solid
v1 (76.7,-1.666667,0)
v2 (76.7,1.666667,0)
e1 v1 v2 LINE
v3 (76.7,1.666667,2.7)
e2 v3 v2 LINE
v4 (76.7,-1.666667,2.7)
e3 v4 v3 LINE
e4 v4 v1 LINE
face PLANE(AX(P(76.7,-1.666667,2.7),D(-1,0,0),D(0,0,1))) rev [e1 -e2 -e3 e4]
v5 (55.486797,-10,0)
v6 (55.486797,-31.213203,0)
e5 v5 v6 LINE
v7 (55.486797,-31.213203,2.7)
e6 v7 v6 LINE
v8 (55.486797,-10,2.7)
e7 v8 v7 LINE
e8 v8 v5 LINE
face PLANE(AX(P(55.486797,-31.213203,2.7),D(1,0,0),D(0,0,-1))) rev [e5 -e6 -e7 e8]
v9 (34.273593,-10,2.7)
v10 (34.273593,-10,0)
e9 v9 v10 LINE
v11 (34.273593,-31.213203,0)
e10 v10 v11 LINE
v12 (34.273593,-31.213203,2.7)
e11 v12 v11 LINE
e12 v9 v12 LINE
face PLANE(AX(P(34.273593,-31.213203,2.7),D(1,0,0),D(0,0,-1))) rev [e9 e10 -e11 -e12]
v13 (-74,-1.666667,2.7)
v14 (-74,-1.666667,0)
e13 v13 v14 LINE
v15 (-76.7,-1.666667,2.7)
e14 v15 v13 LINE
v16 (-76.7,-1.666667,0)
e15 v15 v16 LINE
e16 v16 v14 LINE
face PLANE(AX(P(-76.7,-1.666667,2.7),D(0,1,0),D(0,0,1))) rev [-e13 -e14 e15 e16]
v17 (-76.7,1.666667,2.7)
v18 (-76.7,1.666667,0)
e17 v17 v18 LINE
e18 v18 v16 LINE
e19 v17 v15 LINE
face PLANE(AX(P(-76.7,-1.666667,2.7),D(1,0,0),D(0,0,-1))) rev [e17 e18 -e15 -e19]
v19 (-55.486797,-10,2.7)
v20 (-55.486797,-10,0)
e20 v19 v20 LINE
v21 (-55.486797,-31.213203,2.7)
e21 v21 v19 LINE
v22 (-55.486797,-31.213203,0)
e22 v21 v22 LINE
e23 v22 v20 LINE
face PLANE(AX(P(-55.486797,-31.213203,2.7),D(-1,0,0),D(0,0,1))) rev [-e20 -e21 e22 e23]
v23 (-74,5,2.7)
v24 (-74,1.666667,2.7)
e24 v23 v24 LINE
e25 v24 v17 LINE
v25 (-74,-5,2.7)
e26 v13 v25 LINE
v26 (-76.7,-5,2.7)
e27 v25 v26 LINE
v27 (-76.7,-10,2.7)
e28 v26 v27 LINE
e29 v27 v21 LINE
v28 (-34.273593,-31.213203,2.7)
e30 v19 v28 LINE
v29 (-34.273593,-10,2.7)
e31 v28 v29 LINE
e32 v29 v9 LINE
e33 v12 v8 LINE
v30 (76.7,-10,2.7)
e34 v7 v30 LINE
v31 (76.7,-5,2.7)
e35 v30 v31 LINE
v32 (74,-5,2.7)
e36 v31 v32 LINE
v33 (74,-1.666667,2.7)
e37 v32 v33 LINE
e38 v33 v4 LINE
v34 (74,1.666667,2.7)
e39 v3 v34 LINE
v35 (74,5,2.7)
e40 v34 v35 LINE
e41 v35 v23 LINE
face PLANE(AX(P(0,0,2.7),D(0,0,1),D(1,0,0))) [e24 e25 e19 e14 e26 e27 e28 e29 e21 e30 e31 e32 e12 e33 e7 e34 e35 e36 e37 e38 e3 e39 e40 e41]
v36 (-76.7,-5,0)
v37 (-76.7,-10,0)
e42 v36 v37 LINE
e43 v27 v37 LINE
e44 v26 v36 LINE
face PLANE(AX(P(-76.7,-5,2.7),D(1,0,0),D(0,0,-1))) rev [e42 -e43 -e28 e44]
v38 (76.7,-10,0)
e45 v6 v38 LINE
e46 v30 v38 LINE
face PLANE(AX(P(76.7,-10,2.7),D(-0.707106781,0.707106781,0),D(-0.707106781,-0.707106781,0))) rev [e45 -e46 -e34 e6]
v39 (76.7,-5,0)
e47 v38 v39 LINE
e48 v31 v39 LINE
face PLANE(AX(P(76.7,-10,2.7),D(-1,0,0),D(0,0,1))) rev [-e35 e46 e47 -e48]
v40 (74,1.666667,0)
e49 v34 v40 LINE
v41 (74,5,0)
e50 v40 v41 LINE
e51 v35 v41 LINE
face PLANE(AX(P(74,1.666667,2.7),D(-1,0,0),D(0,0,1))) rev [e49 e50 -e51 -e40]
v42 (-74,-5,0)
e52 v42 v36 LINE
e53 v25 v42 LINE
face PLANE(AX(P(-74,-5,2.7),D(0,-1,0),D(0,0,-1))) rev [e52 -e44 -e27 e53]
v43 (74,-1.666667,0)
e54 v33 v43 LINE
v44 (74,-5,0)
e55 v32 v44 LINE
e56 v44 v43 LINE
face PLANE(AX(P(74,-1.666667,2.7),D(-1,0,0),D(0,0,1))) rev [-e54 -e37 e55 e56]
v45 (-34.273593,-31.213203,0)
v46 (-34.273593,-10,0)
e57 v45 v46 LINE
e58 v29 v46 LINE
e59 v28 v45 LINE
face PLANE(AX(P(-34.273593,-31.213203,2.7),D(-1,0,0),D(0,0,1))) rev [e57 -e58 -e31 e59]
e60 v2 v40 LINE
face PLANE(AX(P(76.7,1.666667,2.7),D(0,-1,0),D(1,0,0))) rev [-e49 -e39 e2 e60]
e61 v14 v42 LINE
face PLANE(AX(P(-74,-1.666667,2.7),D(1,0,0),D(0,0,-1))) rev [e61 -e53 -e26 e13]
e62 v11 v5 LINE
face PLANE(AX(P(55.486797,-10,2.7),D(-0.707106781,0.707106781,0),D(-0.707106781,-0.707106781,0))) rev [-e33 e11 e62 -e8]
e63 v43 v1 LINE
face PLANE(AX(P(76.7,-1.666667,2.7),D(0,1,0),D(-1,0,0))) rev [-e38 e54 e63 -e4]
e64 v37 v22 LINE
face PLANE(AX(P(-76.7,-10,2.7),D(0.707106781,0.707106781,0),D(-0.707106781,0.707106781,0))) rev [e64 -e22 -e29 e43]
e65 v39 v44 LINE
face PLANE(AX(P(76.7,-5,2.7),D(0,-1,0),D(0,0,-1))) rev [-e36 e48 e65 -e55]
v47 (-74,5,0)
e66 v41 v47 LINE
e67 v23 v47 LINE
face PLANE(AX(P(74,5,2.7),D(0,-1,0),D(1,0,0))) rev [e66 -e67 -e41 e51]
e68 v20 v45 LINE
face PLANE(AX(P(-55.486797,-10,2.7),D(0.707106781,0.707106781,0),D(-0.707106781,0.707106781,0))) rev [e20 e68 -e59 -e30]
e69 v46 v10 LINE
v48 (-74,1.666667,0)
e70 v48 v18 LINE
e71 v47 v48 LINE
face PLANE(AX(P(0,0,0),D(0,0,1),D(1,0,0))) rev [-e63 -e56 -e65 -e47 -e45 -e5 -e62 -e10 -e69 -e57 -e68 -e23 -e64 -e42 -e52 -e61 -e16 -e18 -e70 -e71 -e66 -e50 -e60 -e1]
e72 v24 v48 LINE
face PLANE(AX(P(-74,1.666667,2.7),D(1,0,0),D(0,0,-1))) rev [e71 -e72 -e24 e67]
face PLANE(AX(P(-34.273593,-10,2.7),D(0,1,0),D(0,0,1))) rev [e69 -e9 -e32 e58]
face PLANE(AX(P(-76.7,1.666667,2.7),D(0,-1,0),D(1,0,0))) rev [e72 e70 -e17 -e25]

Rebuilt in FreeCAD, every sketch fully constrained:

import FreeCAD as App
import Part
import Sketcher
from FreeCAD import Vector


def add_polygon(sketch, points):
    """Adds a closed chain of lines whose ends are joined by coincident constraints."""
    first, n = sketch.GeometryCount, len(points)
    for a, b in zip(points, points[1:] + points[:1]):
        sketch.addGeometry(Part.LineSegment(App.Vector(*a, 0), App.Vector(*b, 0)), False)
    for i in range(n):
        sketch.addConstraint(Sketcher.Constraint("Coincident", first + i, 2, first + (i + 1) % n, 1))

doc = App.newDocument("Part")
body = doc.addObject("PartDesign::Body", "Body")

# Sketch on XY plane
sketch1 = doc.addObject("Sketcher::SketchObject", "Sketch")
body.addObject(sketch1)
sketch1.AttachmentSupport = (doc.XY_Plane, [""])
sketch1.MapMode = "FlatFace"
add_polygon(sketch1, [(-76.7, 1.7), (-76.7, -1.7), (-74, -1.7), (-74, -5), (-76.7, -5), (-76.7, -10), (-55.5, -31.2), (-55.5, -10), (-34.3, -31.2), (-34.3, -10), (34.3, -10), (34.3, -31.2), (55.5, -10), (55.5, -31.2), (76.7, -10), (76.7, -5), (74, -5), (74, -1.7), (76.7, -1.7), (76.7, 1.7), (74, 1.7), (74, 5), (-74, 5), (-74, 1.7)])  # lines 0-23
sketch1.addConstraint(Sketcher.Constraint("Vertical", 0))
sketch1.addConstraint(Sketcher.Constraint("Horizontal", 1))
sketch1.addConstraint(Sketcher.Constraint("Vertical", 2))
sketch1.addConstraint(Sketcher.Constraint("Horizontal", 3))
sketch1.addConstraint(Sketcher.Constraint("Vertical", 4))
sketch1.addConstraint(Sketcher.Constraint("Vertical", 6))
sketch1.addConstraint(Sketcher.Constraint("Vertical", 8))
sketch1.addConstraint(Sketcher.Constraint("Horizontal", 9))
sketch1.addConstraint(Sketcher.Constraint("Vertical", 10))
sketch1.addConstraint(Sketcher.Constraint("Vertical", 12))
sketch1.addConstraint(Sketcher.Constraint("Vertical", 14))
sketch1.addConstraint(Sketcher.Constraint("Horizontal", 15))
sketch1.addConstraint(Sketcher.Constraint("Vertical", 16))
sketch1.addConstraint(Sketcher.Constraint("Horizontal", 17))
sketch1.addConstraint(Sketcher.Constraint("Vertical", 18))
sketch1.addConstraint(Sketcher.Constraint("Horizontal", 19))
sketch1.addConstraint(Sketcher.Constraint("Vertical", 20))
sketch1.addConstraint(Sketcher.Constraint("Horizontal", 21))
sketch1.addConstraint(Sketcher.Constraint("Vertical", 22))
sketch1.addConstraint(Sketcher.Constraint("Horizontal", 23))
sketch1.addConstraint(Sketcher.Constraint("Symmetric", 0, 2, 18, 2, -1, 1))
sketch1.addConstraint(Sketcher.Constraint("Symmetric", 2, 2, 20, 2, -1, 1))
sketch1.addConstraint(Sketcher.Constraint("Symmetric", 15, 2, 21, 2, -1, 1))
sketch1.addConstraint(Sketcher.Constraint("Symmetric", 7, 2, 10, 2, -2))
sketch1.addConstraint(Sketcher.Constraint("Symmetric", 6, 2, 11, 2, -2))
sketch1.addConstraint(Sketcher.Constraint("Symmetric", 4, 2, 13, 2, -2))
sketch1.addConstraint(Sketcher.Constraint("Symmetric", 1, 2, 16, 2, -2))
sketch1.addConstraint(Sketcher.Constraint("Parallel", 5, 7))
sketch1.addConstraint(Sketcher.Constraint("Perpendicular", 7, 11))
sketch1.addConstraint(Sketcher.Constraint("Parallel", 11, 13))
sketch1.addConstraint(Sketcher.Constraint("Horizontal", 4, 2, 6, 2))
sketch1.addConstraint(Sketcher.Constraint("Horizontal", 5, 2, 7, 2))
sketch1.addConstraint(Sketcher.Constraint("Horizontal", 6, 2, 8, 2))
sketch1.addConstraint(Sketcher.Constraint("Horizontal", 19, 2, 22, 2))
sketch1.addConstraint(Sketcher.Constraint("Vertical", 0, 2, 3, 2))
sketch1.addConstraint(Sketcher.Constraint("Equal", 0, 2))
sketch1.addConstraint(Sketcher.Constraint("DistanceX", 21, 2, 21, 1, 148.0))
sketch1.addConstraint(Sketcher.Constraint("DistanceY", 4, 2, 4, 1, 5.0))
sketch1.addConstraint(Sketcher.Constraint("Distance", 5, 30.0))
sketch1.addConstraint(Sketcher.Constraint("DistanceX", 1, 1, 1, 2, 2.7))
sketch1.addConstraint(Sketcher.Constraint("DistanceY", 2, 2, -1, 1, 5.0))
pad1 = doc.addObject("PartDesign::Pad", "Pad")
body.addObject(pad1)
pad1.Profile = sketch1
pad1.Length = 2.7

doc.recompute()
